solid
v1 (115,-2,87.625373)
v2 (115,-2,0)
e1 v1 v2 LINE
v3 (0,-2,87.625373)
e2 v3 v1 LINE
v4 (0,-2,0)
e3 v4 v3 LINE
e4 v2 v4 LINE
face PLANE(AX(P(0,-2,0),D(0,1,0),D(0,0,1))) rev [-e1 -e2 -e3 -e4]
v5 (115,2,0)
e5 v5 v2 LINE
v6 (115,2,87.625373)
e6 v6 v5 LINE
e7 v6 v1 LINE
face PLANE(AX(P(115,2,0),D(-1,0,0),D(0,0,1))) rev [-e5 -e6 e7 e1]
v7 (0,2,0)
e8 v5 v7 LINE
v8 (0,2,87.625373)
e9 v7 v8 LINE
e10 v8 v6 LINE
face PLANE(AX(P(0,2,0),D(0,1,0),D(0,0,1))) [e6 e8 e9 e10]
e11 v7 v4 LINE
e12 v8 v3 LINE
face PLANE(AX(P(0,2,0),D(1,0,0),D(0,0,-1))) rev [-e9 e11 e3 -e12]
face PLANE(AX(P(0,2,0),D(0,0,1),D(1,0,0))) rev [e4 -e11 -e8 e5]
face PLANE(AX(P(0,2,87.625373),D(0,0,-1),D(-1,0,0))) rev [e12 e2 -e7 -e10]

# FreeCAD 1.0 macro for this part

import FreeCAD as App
import Part
import Sketcher
from FreeCAD import Vector


def add_polygon(sketch, points):
    """Adds a closed chain of lines whose ends are joined by coincident constraints."""
    first, n = sketch.GeometryCount, len(points)
    for a, b in zip(points, points[1:] + points[:1]):
        sketch.addGeometry(Part.LineSegment(App.Vector(*a, 0), App.Vector(*b, 0)), False)
    for i in range(n):
        sketch.addConstraint(Sketcher.Constraint("Coincident", first + i, 2, first + (i + 1) % n, 1))

doc = App.newDocument("Part")
body = doc.addObject("PartDesign::Body", "Body")

# Sketch on XZ plane
sketch1 = doc.addObject("Sketcher::SketchObject", "Sketch")
body.addObject(sketch1)
sketch1.AttachmentSupport = (doc.XZ_Plane, [""])
sketch1.MapMode = "FlatFace"
add_polygon(sketch1, [(0, 0), (0, 88), (115, 88), (115, 0)])  # lines 0-3
sketch1.addConstraint(Sketcher.Constraint("Vertical", 0))
sketch1.addConstraint(Sketcher.Constraint("Horizontal", 1))
sketch1.addConstraint(Sketcher.Constraint("Vertical", 2))
sketch1.addConstraint(Sketcher.Constraint("Horizontal", 3))
sketch1.addConstraint(Sketcher.Constraint("Coincident", 3, 2, -1, 1))
sketch1.addConstraint(Sketcher.Constraint("DistanceX", 1, 1, 1, 2, 115.0))
sketch1.addConstraint(Sketcher.Constraint("DistanceY", 0, 1, 0, 2, 87.625373))
pad1 = doc.addObject("PartDesign::Pad", "Pad")
body.addObject(pad1)
pad1.Profile = sketch1
pad1.Length = 4
pad1.Midplane = True

doc.recompute()
